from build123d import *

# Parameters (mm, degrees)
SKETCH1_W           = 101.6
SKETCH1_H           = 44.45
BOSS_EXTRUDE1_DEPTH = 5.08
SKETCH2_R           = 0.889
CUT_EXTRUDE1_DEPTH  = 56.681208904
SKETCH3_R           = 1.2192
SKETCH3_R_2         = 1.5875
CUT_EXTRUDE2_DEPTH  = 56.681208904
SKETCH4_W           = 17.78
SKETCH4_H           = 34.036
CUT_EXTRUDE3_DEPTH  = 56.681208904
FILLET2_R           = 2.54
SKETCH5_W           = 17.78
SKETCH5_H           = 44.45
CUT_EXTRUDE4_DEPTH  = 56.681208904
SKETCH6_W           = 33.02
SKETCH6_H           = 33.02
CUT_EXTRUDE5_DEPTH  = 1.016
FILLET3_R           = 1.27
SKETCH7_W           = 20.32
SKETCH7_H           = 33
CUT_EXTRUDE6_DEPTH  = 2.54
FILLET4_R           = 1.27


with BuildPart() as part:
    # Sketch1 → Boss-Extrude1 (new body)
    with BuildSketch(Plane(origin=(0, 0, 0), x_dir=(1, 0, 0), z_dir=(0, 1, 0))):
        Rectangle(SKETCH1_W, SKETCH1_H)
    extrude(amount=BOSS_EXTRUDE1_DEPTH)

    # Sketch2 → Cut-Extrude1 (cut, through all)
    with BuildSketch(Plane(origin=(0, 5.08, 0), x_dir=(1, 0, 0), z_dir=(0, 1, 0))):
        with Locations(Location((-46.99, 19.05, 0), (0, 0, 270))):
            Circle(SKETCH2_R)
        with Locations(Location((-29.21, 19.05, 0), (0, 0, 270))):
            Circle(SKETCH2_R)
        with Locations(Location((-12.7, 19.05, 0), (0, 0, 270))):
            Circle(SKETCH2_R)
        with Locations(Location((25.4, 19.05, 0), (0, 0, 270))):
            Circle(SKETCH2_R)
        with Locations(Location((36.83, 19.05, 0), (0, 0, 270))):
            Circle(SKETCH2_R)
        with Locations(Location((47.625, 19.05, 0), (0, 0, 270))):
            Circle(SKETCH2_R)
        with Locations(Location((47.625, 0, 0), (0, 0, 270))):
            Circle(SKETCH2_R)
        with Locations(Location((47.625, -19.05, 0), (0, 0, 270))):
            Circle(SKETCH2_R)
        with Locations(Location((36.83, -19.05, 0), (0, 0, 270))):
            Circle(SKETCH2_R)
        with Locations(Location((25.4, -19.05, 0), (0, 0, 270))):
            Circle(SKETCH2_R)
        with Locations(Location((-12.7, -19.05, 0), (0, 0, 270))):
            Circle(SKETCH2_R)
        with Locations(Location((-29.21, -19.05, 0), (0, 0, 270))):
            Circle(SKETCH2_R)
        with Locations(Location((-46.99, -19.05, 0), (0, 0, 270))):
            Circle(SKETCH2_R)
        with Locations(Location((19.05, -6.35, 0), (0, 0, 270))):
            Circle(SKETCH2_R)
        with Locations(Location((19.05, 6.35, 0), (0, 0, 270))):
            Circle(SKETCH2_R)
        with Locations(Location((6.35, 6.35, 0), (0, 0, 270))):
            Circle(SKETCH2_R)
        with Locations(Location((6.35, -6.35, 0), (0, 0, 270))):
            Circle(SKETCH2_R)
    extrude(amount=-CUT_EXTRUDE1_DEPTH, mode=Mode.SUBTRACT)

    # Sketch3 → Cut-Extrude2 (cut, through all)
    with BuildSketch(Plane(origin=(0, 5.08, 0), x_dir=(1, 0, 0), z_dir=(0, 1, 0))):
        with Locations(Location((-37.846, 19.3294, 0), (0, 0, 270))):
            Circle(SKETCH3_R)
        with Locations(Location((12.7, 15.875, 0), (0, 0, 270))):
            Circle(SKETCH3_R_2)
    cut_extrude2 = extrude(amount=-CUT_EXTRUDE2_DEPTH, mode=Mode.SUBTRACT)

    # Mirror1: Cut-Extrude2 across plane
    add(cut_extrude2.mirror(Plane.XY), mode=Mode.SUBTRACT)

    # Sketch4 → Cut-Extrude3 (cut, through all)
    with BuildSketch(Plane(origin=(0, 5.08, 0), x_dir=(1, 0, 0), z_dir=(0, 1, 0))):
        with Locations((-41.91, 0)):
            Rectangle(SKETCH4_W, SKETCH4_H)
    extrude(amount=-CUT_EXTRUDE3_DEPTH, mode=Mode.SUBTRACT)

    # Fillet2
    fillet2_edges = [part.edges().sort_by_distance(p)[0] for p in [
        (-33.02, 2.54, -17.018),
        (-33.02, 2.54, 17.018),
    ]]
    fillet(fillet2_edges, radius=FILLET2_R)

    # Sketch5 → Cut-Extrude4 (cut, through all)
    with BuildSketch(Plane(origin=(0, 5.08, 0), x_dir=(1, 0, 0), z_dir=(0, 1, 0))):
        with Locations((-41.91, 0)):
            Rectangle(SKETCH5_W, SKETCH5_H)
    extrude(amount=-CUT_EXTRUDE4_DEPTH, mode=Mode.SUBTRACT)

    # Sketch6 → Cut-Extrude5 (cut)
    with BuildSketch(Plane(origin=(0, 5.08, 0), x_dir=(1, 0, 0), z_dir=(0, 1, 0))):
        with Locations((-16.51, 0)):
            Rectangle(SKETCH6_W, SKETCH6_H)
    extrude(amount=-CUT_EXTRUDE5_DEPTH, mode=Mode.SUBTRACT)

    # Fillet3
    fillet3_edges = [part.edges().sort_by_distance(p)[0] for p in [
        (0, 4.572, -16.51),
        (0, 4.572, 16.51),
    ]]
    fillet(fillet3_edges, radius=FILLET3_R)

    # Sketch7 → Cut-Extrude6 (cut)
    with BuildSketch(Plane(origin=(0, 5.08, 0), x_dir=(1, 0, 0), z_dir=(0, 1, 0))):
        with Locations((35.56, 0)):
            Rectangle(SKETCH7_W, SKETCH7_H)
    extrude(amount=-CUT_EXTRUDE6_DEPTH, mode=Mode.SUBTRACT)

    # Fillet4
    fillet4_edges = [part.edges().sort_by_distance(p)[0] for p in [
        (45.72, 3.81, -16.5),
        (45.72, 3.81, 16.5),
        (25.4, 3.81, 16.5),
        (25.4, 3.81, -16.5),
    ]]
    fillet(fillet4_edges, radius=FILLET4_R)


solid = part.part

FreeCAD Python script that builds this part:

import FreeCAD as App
import Part
import Sketcher

V = App.Vector
Q = App.Units.Quantity


def edges_at(feature, points):
    """Names of the edges that pass closest to the given points."""
    edges = feature.Shape.Edges
    near = lambda p: min(range(len(edges)), key=lambda i: edges[i].distToShape(Part.Vertex(*p))[0])
    return sorted({f"Edge{near(p) + 1}" for p in points})

doc = App.newDocument("Part")
params = doc.addObject("Spreadsheet::Sheet", "Params")
for row, (alias, value) in enumerate([
    ("sketch1_width", "4 in"),
    ("sketch1_height", "1.75 in"),
    ("pad1_length", "0.2 in"),
    ("sketch2_diameter", "0.07 in"),
    ("sketch3_diameter", "0.096 in"),
    ("sketch3_diameter2", "0.125 in"),
    ("sketch4_width", "0.7 in"),
    ("sketch4_height", "1.34 in"),
    ("fillet_radius", "0.1 in"),
    ("sketch5_width", "0.7 in"),
    ("sketch5_height", "1.75 in"),
    ("sketch6_width", "1.3 in"),
    ("pocket5_length", "0.04 in"),
    ("fillet2_radius", "0.05 in"),
    ("sketch7_width", "0.8 in"),
    ("pocket6_length", "0.1 in"),
    ("fillet3_radius", "0.05 in"),
], start=1):
    params.set(f"A{row}", alias)
    params.set(f"B{row}", "=" + value)
    params.setAlias(f"B{row}", alias)

body = doc.addObject("PartDesign::Body", "Body")

# Sketch on XZ plane
sketch1 = body.newObject("Sketcher::SketchObject", "Sketch")
sketch1.AttachmentSupport = (doc.getObject("XZ_Plane"), [""])
sketch1.MapMode = "FlatFace"
sketch1.addGeometry([
    Part.LineSegment(V(-51, -22, 0), V(-51, 22, 0)),
    Part.LineSegment(V(-51, 22, 0), V(51, 22, 0)),
    Part.LineSegment(V(51, 22, 0), V(51, -22, 0)),
    Part.LineSegment(V(51, -22, 0), V(-51, -22, 0)),
], False)
sketch1.addConstraint([
    Sketcher.Constraint("Coincident", 0, 2, 1, 1),
    Sketcher.Constraint("Coincident", 1, 2, 2, 1),
    Sketcher.Constraint("Coincident", 2, 2, 3, 1),
    Sketcher.Constraint("Coincident", 3, 2, 0, 1),
    Sketcher.Constraint("Vertical", 0),
    Sketcher.Constraint("Horizontal", 1),
    Sketcher.Constraint("Vertical", 2),
    Sketcher.Constraint("Horizontal", 3),
    Sketcher.Constraint("Symmetric", 0, 2, 2, 2, -1, 1),
    Sketcher.Constraint("DistanceX", 1, 1, 1, 2, Q("4 in")),
    Sketcher.Constraint("DistanceY", 0, 1, 0, 2, Q("1.75 in")),
])
sketch1.setExpression("Constraints[9]", "Params.sketch1_width")
sketch1.setExpression("Constraints[10]", "Params.sketch1_height")
pad1 = body.newObject("PartDesign::Pad", "Pad")
pad1.Profile = sketch1
pad1.setExpression("Length", "Params.pad1_length")
pad1.Reversed = True

# Sketch on XZ plane
sketch2 = body.newObject("Sketcher::SketchObject", "Sketch001")
sketch2.AttachmentSupport = (doc.getObject("XZ_Plane"), [""])
sketch2.MapMode = "FlatFace"
sketch2.AttachmentOffset = App.Placement(V(0, 0, -0.2 * 25.4), App.Rotation())
sketch2.addGeometry([
    Part.Circle(V(-47, -19.1, 0), V(0, 0, 1), 0.9),  # 0
    Part.Circle(V(-29.2, -19.1, 0), V(0, 0, 1), 0.9),  # 1
    Part.Circle(V(-12.7, -19.1, 0), V(0, 0, 1), 0.9),  # 2
    Part.Circle(V(25.4, -19.1, 0), V(0, 0, 1), 0.9),  # 3
    Part.Circle(V(36.8, -19.1, 0), V(0, 0, 1), 0.9),  # 4
    Part.Circle(V(47.6, -19.1, 0), V(0, 0, 1), 0.9),  # 5
    Part.Circle(V(47.6, 0, 0), V(0, 0, 1), 0.9),  # 6
    Part.Circle(V(47.6, 19.1, 0), V(0, 0, 1), 0.9),  # 7
    Part.Circle(V(36.8, 19.1, 0), V(0, 0, 1), 0.9),  # 8
    Part.Circle(V(25.4, 19.1, 0), V(0, 0, 1), 0.9),  # 9
    Part.Circle(V(-12.7, 19.1, 0), V(0, 0, 1), 0.9),  # 10
    Part.Circle(V(-29.2, 19.1, 0), V(0, 0, 1), 0.9),  # 11
    Part.Circle(V(-47, 19.1, 0), V(0, 0, 1), 0.9),  # 12
    Part.Circle(V(19.1, 6.3, 0), V(0, 0, 1), 0.9),  # 13
    Part.Circle(V(19.1, -6.3, 0), V(0, 0, 1), 0.9),  # 14
    Part.Circle(V(6.3, -6.3, 0), V(0, 0, 1), 0.9),  # 15
    Part.Circle(V(6.3, 6.3, 0), V(0, 0, 1), 0.9),  # 16
], False)
sketch2.addConstraint([
    Sketcher.Constraint("Equal", 0, 1),
    Sketcher.Constraint("Equal", 1, 2),
    Sketcher.Constraint("Equal", 2, 3),
    Sketcher.Constraint("Equal", 3, 4),
    Sketcher.Constraint("Equal", 4, 5),
    Sketcher.Constraint("Equal", 5, 6),
    Sketcher.Constraint("Equal", 6, 7),
    Sketcher.Constraint("Equal", 7, 8),
    Sketcher.Constraint("Equal", 8, 9),
    Sketcher.Constraint("Equal", 9, 10),
    Sketcher.Constraint("Equal", 10, 11),
    Sketcher.Constraint("Equal", 11, 12),
    Sketcher.Constraint("Equal", 12, 13),
    Sketcher.Constraint("Equal", 13, 14),
    Sketcher.Constraint("Equal", 14, 15),
    Sketcher.Constraint("Equal", 15, 16),
    Sketcher.Constraint("Symmetric", 5, 3, 7, 3, -1),
    Sketcher.Constraint("Symmetric", 4, 3, 8, 3, -1),
    Sketcher.Constraint("Symmetric", 3, 3, 9, 3, -1),
    Sketcher.Constraint("Symmetric", 2, 3, 10, 3, -1),
    Sketcher.Constraint("Symmetric", 1, 3, 11, 3, -1),
    Sketcher.Constraint("Symmetric", 0, 3, 12, 3, -1),
    Sketcher.Constraint("Symmetric", 13, 3, 14, 3, -1),
    Sketcher.Constraint("Symmetric", 15, 3, 16, 3, -1),
    Sketcher.Constraint("PointOnObject", 6, 3, -1),
    Sketcher.Constraint("Horizontal", 0, 3, 1, 3),
    Sketcher.Constraint("Horizontal", 1, 3, 2, 3),
    Sketcher.Constraint("Horizontal", 2, 3, 3, 3),
    Sketcher.Constraint("Horizontal", 3, 3, 4, 3),
    Sketcher.Constraint("Horizontal", 4, 3, 5, 3),
    Sketcher.Constraint("Horizontal", 14, 3, 15, 3),
    Sketcher.Constraint("Vertical", 5, 3, 6, 3),
    Sketcher.Constraint("Diameter", 0, Q("0.07 in")),
    Sketcher.Constraint("DistanceX", -1, 1, 3, 3, Q("1 in")),
    Sketcher.Constraint("DistanceY", 3, 3, 13, 3, Q("1 in")),
    Sketcher.Constraint("DistanceX", 2, 3, -1, 1, Q("0.5 in")),
    Sketcher.Constraint("DistanceX", 0, 3, 1, 3, Q("0.7 in")),
    Sketcher.Constraint("DistanceX", 1, 3, 4, 3, Q("2.6 in")),
    Sketcher.Constraint("DistanceY", 5, 3, 7, 3, Q("1.5 in")),
    Sketcher.Constraint("DistanceX", 13, 3, 8, 3, Q("0.7 in")),
    Sketcher.Constraint("DistanceX", 15, 3, 14, 3, Q("0.5 in")),
    Sketcher.Constraint("DistanceX", 0, 3, -1, 1, Q("1.85 in")),
    Sketcher.Constraint("DistanceX", -1, 1, 5, 3, Q("1.875 in")),
])
sketch2.setExpression("Constraints[32]", "Params.sketch2_diameter")
pocket1 = body.newObject("PartDesign::Pocket", "Pocket")
pocket1.Profile = sketch2
pocket1.Type = "ThroughAll"
pocket1.Reversed = True

# Sketch on XZ plane
sketch3 = body.newObject("Sketcher::SketchObject", "Sketch002")
sketch3.AttachmentSupport = (doc.getObject("XZ_Plane"), [""])
sketch3.MapMode = "FlatFace"
sketch3.AttachmentOffset = App.Placement(V(0, 0, -0.2 * 25.4), App.Rotation())
sketch3.addGeometry([
    Part.Circle(V(-37.8, -19.3, 0), V(0, 0, 1), 1.2),
    Part.Circle(V(12.7, -15.9, 0), V(0, 0, 1), 1.6),
], False)
sketch3.addConstraint([
    Sketcher.Constraint("Diameter", 0, Q("0.096 in")),
    Sketcher.Constraint("Diameter", 1, Q("0.125 in")),
    Sketcher.Constraint("DistanceX", -1, 1, 1, 3, Q("0.5 in")),
    Sketcher.Constraint("DistanceX", 0, 3, -1, 1, Q("1.49 in")),
    Sketcher.Constraint("DistanceY", 0, 3, -1, 1, Q("0.761 in")),
    Sketcher.Constraint("DistanceY", 1, 3, -1, 1, Q("0.625 in")),
])
sketch3.setExpression("Constraints[0]", "Params.sketch3_diameter")
sketch3.setExpression("Constraints[1]", "Params.sketch3_diameter2")
pocket2 = body.newObject("PartDesign::Pocket", "Pocket001")
pocket2.Profile = sketch3
pocket2.Type = "ThroughAll"
pocket2.Reversed = True
doc.recompute()

mirrored = body.newObject("PartDesign::Mirrored", "Mirrored")
mirrored.Originals = [pocket2]
mirrored.MirrorPlane = (doc.getObject("XY_Plane"), [""])
body.Tip = mirrored

# Sketch on XZ plane
sketch4 = body.newObject("Sketcher::SketchObject", "Sketch003")
sketch4.AttachmentSupport = (doc.getObject("XZ_Plane"), [""])
sketch4.MapMode = "FlatFace"
sketch4.AttachmentOffset = App.Placement(V(0, 0, -0.2 * 25.4), App.Rotation())
sketch4.addGeometry([
    Part.LineSegment(V(-51, -17, 0), V(-51, 17, 0)),
    Part.LineSegment(V(-51, 17, 0), V(-33, 17, 0)),
    Part.LineSegment(V(-33, 17, 0), V(-33, -17, 0)),
    Part.LineSegment(V(-33, -17, 0), V(-51, -17, 0)),
], False)
sketch4.addConstraint([
    Sketcher.Constraint("Coincident", 0, 2, 1, 1),
    Sketcher.Constraint("Coincident", 1, 2, 2, 1),
    Sketcher.Constraint("Coincident", 2, 2, 3, 1),
    Sketcher.Constraint("Coincident", 3, 2, 0, 1),
    Sketcher.Constraint("Vertical", 0),
    Sketcher.Constraint("Horizontal", 1),
    Sketcher.Constraint("Vertical", 2),
    Sketcher.Constraint("Horizontal", 3),
    Sketcher.Constraint("DistanceX", 1, 1, 1, 2, Q("0.7 in")),
    Sketcher.Constraint("DistanceX", 0, 2, -1, 1, Q("2 in")),
    Sketcher.Constraint("DistanceY", 0, 1, 0, 2, Q("1.34 in")),
    Sketcher.Constraint("DistanceY", -1, 1, 0, 2, Q("0.67 in")),
])
sketch4.setExpression("Constraints[8]", "Params.sketch4_width")
sketch4.setExpression("Constraints[10]", "Params.sketch4_height")
pocket3 = body.newObject("PartDesign::Pocket", "Pocket002")
pocket3.Profile = sketch4
pocket3.Type = "ThroughAll"
pocket3.Reversed = True
doc.recompute()

fillet = body.newObject("PartDesign::Fillet", "Fillet")
fillet.Base = (pocket3, edges_at(pocket3, [(-33.02, 2.54, -17.018), (-33.02, 2.54, 17.018)]))
fillet.setExpression("Radius", "Params.fillet_radius")

# Sketch on XZ plane
sketch5 = body.newObject("Sketcher::SketchObject", "Sketch004")
sketch5.AttachmentSupport = (doc.getObject("XZ_Plane"), [""])
sketch5.MapMode = "FlatFace"
sketch5.AttachmentOffset = App.Placement(V(0, 0, -0.2 * 25.4), App.Rotation())
sketch5.addGeometry([
    Part.LineSegment(V(-51, -22, 0), V(-51, 22, 0)),
    Part.LineSegment(V(-51, 22, 0), V(-33, 22, 0)),
    Part.LineSegment(V(-33, 22, 0), V(-33, -22, 0)),
    Part.LineSegment(V(-33, -22, 0), V(-51, -22, 0)),
], False)
sketch5.addConstraint([
    Sketcher.Constraint("Coincident", 0, 2, 1, 1),
    Sketcher.Constraint("Coincident", 1, 2, 2, 1),
    Sketcher.Constraint("Coincident", 2, 2, 3, 1),
    Sketcher.Constraint("Coincident", 3, 2, 0, 1),
    Sketcher.Constraint("Vertical", 0),
    Sketcher.Constraint("Horizontal", 1),
    Sketcher.Constraint("Vertical", 2),
    Sketcher.Constraint("Horizontal", 3),
    Sketcher.Constraint("DistanceX", 1, 1, 1, 2, Q("0.7 in")),
    Sketcher.Constraint("DistanceX", 0, 2, -1, 1, Q("2 in")),
    Sketcher.Constraint("DistanceY", 0, 1, 0, 2, Q("1.75 in")),
    Sketcher.Constraint("DistanceY", -1, 1, 0, 2, Q("0.875 in")),
])
sketch5.setExpression("Constraints[8]", "Params.sketch5_width")
sketch5.setExpression("Constraints[10]", "Params.sketch5_height")
pocket4 = body.newObject("PartDesign::Pocket", "Pocket003")
pocket4.Profile = sketch5
pocket4.Type = "ThroughAll"
pocket4.Reversed = True

# Sketch on XZ plane
sketch6 = body.newObject("Sketcher::SketchObject", "Sketch005")
sketch6.AttachmentSupport = (doc.getObject("XZ_Plane"), [""])
sketch6.MapMode = "FlatFace"
sketch6.AttachmentOffset = App.Placement(V(0, 0, -0.2 * 25.4), App.Rotation())
sketch6.addGeometry([
    Part.LineSegment(V(-33, -17, 0), V(-33, 17, 0)),
    Part.LineSegment(V(-33, 17, 0), V(0, 17, 0)),
    Part.LineSegment(V(0, 17, 0), V(0, -17, 0)),
    Part.LineSegment(V(0, -17, 0), V(-33, -17, 0)),
], False)
sketch6.addConstraint([
    Sketcher.Constraint("Coincident", 0, 2, 1, 1),
    Sketcher.Constraint("Coincident", 1, 2, 2, 1),
    Sketcher.Constraint("Coincident", 2, 2, 3, 1),
    Sketcher.Constraint("Coincident", 3, 2, 0, 1),
    Sketcher.Constraint("Vertical", 0),
    Sketcher.Constraint("Horizontal", 1),
    Sketcher.Constraint("Vertical", 2),
    Sketcher.Constraint("Horizontal", 3),
    Sketcher.Constraint("Symmetric", 1, 2, 2, 2, -1, 1),
    Sketcher.Constraint("Equal", 3, 0),
    Sketcher.Constraint("DistanceX", 1, 1, 1, 2, Q("1.3 in")),
])
sketch6.setExpression("Constraints[10]", "Params.sketch6_width")
pocket5 = body.newObject("PartDesign::Pocket", "Pocket004")
pocket5.Profile = sketch6
pocket5.setExpression("Length", "Params.pocket5_length")
pocket5.Reversed = True
doc.recompute()

fillet2 = body.newObject("PartDesign::Fillet", "Fillet001")
fillet2.Base = (pocket5, edges_at(pocket5, [(0, 4.572, -16.51), (0, 4.572, 16.51)]))
fillet2.setExpression("Radius", "Params.fillet2_radius")

# Sketch on XZ plane
sketch7 = body.newObject("Sketcher::SketchObject", "Sketch006")
sketch7.AttachmentSupport = (doc.getObject("XZ_Plane"), [""])
sketch7.MapMode = "FlatFace"
sketch7.AttachmentOffset = App.Placement(V(0, 0, -0.2 * 25.4), App.Rotation())
sketch7.addGeometry([
    Part.LineSegment(V(25, -16, 0), V(25, 16, 0)),
    Part.LineSegment(V(25, 16, 0), V(46, 16, 0)),
    Part.LineSegment(V(46, 16, 0), V(46, -16, 0)),
    Part.LineSegment(V(46, -16, 0), V(25, -16, 0)),
], False)
sketch7.addConstraint([
    Sketcher.Constraint("Coincident", 0, 2, 1, 1),
    Sketcher.Constraint("Coincident", 1, 2, 2, 1),
    Sketcher.Constraint("Coincident", 2, 2, 3, 1),
    Sketcher.Constraint("Coincident", 3, 2, 0, 1),
    Sketcher.Constraint("Vertical", 0),
    Sketcher.Constraint("Horizontal", 1),
    Sketcher.Constraint("Vertical", 2),
    Sketcher.Constraint("Horizontal", 3),
    Sketcher.Constraint("DistanceX", 1, 1, 1, 2, Q("0.8 in")),
    Sketcher.Constraint("DistanceX", -1, 1, 0, 2, Q("1 in")),
    Sketcher.Constraint("DistanceY", 0, 1, 0, 2, 33.0),
    Sketcher.Constraint("DistanceY", -1, 1, 0, 2, 16.5),
])
sketch7.setExpression("Constraints[8]", "Params.sketch7_width")
pocket6 = body.newObject("PartDesign::Pocket", "Pocket005")
pocket6.Profile = sketch7
pocket6.setExpression("Length", "Params.pocket6_length")
pocket6.Reversed = True
doc.recompute()

fillet3 = body.newObject("PartDesign::Fillet", "Fillet002")
fillet3.Base = (pocket6, edges_at(pocket6, [
    (45.72, 3.81, -16.5),
    (45.72, 3.81, 16.5),
    (25.4, 3.81, 16.5),
    (25.4, 3.81, -16.5),
]))
fillet3.setExpression("Radius", "Params.fillet3_radius")

doc.recompute()
